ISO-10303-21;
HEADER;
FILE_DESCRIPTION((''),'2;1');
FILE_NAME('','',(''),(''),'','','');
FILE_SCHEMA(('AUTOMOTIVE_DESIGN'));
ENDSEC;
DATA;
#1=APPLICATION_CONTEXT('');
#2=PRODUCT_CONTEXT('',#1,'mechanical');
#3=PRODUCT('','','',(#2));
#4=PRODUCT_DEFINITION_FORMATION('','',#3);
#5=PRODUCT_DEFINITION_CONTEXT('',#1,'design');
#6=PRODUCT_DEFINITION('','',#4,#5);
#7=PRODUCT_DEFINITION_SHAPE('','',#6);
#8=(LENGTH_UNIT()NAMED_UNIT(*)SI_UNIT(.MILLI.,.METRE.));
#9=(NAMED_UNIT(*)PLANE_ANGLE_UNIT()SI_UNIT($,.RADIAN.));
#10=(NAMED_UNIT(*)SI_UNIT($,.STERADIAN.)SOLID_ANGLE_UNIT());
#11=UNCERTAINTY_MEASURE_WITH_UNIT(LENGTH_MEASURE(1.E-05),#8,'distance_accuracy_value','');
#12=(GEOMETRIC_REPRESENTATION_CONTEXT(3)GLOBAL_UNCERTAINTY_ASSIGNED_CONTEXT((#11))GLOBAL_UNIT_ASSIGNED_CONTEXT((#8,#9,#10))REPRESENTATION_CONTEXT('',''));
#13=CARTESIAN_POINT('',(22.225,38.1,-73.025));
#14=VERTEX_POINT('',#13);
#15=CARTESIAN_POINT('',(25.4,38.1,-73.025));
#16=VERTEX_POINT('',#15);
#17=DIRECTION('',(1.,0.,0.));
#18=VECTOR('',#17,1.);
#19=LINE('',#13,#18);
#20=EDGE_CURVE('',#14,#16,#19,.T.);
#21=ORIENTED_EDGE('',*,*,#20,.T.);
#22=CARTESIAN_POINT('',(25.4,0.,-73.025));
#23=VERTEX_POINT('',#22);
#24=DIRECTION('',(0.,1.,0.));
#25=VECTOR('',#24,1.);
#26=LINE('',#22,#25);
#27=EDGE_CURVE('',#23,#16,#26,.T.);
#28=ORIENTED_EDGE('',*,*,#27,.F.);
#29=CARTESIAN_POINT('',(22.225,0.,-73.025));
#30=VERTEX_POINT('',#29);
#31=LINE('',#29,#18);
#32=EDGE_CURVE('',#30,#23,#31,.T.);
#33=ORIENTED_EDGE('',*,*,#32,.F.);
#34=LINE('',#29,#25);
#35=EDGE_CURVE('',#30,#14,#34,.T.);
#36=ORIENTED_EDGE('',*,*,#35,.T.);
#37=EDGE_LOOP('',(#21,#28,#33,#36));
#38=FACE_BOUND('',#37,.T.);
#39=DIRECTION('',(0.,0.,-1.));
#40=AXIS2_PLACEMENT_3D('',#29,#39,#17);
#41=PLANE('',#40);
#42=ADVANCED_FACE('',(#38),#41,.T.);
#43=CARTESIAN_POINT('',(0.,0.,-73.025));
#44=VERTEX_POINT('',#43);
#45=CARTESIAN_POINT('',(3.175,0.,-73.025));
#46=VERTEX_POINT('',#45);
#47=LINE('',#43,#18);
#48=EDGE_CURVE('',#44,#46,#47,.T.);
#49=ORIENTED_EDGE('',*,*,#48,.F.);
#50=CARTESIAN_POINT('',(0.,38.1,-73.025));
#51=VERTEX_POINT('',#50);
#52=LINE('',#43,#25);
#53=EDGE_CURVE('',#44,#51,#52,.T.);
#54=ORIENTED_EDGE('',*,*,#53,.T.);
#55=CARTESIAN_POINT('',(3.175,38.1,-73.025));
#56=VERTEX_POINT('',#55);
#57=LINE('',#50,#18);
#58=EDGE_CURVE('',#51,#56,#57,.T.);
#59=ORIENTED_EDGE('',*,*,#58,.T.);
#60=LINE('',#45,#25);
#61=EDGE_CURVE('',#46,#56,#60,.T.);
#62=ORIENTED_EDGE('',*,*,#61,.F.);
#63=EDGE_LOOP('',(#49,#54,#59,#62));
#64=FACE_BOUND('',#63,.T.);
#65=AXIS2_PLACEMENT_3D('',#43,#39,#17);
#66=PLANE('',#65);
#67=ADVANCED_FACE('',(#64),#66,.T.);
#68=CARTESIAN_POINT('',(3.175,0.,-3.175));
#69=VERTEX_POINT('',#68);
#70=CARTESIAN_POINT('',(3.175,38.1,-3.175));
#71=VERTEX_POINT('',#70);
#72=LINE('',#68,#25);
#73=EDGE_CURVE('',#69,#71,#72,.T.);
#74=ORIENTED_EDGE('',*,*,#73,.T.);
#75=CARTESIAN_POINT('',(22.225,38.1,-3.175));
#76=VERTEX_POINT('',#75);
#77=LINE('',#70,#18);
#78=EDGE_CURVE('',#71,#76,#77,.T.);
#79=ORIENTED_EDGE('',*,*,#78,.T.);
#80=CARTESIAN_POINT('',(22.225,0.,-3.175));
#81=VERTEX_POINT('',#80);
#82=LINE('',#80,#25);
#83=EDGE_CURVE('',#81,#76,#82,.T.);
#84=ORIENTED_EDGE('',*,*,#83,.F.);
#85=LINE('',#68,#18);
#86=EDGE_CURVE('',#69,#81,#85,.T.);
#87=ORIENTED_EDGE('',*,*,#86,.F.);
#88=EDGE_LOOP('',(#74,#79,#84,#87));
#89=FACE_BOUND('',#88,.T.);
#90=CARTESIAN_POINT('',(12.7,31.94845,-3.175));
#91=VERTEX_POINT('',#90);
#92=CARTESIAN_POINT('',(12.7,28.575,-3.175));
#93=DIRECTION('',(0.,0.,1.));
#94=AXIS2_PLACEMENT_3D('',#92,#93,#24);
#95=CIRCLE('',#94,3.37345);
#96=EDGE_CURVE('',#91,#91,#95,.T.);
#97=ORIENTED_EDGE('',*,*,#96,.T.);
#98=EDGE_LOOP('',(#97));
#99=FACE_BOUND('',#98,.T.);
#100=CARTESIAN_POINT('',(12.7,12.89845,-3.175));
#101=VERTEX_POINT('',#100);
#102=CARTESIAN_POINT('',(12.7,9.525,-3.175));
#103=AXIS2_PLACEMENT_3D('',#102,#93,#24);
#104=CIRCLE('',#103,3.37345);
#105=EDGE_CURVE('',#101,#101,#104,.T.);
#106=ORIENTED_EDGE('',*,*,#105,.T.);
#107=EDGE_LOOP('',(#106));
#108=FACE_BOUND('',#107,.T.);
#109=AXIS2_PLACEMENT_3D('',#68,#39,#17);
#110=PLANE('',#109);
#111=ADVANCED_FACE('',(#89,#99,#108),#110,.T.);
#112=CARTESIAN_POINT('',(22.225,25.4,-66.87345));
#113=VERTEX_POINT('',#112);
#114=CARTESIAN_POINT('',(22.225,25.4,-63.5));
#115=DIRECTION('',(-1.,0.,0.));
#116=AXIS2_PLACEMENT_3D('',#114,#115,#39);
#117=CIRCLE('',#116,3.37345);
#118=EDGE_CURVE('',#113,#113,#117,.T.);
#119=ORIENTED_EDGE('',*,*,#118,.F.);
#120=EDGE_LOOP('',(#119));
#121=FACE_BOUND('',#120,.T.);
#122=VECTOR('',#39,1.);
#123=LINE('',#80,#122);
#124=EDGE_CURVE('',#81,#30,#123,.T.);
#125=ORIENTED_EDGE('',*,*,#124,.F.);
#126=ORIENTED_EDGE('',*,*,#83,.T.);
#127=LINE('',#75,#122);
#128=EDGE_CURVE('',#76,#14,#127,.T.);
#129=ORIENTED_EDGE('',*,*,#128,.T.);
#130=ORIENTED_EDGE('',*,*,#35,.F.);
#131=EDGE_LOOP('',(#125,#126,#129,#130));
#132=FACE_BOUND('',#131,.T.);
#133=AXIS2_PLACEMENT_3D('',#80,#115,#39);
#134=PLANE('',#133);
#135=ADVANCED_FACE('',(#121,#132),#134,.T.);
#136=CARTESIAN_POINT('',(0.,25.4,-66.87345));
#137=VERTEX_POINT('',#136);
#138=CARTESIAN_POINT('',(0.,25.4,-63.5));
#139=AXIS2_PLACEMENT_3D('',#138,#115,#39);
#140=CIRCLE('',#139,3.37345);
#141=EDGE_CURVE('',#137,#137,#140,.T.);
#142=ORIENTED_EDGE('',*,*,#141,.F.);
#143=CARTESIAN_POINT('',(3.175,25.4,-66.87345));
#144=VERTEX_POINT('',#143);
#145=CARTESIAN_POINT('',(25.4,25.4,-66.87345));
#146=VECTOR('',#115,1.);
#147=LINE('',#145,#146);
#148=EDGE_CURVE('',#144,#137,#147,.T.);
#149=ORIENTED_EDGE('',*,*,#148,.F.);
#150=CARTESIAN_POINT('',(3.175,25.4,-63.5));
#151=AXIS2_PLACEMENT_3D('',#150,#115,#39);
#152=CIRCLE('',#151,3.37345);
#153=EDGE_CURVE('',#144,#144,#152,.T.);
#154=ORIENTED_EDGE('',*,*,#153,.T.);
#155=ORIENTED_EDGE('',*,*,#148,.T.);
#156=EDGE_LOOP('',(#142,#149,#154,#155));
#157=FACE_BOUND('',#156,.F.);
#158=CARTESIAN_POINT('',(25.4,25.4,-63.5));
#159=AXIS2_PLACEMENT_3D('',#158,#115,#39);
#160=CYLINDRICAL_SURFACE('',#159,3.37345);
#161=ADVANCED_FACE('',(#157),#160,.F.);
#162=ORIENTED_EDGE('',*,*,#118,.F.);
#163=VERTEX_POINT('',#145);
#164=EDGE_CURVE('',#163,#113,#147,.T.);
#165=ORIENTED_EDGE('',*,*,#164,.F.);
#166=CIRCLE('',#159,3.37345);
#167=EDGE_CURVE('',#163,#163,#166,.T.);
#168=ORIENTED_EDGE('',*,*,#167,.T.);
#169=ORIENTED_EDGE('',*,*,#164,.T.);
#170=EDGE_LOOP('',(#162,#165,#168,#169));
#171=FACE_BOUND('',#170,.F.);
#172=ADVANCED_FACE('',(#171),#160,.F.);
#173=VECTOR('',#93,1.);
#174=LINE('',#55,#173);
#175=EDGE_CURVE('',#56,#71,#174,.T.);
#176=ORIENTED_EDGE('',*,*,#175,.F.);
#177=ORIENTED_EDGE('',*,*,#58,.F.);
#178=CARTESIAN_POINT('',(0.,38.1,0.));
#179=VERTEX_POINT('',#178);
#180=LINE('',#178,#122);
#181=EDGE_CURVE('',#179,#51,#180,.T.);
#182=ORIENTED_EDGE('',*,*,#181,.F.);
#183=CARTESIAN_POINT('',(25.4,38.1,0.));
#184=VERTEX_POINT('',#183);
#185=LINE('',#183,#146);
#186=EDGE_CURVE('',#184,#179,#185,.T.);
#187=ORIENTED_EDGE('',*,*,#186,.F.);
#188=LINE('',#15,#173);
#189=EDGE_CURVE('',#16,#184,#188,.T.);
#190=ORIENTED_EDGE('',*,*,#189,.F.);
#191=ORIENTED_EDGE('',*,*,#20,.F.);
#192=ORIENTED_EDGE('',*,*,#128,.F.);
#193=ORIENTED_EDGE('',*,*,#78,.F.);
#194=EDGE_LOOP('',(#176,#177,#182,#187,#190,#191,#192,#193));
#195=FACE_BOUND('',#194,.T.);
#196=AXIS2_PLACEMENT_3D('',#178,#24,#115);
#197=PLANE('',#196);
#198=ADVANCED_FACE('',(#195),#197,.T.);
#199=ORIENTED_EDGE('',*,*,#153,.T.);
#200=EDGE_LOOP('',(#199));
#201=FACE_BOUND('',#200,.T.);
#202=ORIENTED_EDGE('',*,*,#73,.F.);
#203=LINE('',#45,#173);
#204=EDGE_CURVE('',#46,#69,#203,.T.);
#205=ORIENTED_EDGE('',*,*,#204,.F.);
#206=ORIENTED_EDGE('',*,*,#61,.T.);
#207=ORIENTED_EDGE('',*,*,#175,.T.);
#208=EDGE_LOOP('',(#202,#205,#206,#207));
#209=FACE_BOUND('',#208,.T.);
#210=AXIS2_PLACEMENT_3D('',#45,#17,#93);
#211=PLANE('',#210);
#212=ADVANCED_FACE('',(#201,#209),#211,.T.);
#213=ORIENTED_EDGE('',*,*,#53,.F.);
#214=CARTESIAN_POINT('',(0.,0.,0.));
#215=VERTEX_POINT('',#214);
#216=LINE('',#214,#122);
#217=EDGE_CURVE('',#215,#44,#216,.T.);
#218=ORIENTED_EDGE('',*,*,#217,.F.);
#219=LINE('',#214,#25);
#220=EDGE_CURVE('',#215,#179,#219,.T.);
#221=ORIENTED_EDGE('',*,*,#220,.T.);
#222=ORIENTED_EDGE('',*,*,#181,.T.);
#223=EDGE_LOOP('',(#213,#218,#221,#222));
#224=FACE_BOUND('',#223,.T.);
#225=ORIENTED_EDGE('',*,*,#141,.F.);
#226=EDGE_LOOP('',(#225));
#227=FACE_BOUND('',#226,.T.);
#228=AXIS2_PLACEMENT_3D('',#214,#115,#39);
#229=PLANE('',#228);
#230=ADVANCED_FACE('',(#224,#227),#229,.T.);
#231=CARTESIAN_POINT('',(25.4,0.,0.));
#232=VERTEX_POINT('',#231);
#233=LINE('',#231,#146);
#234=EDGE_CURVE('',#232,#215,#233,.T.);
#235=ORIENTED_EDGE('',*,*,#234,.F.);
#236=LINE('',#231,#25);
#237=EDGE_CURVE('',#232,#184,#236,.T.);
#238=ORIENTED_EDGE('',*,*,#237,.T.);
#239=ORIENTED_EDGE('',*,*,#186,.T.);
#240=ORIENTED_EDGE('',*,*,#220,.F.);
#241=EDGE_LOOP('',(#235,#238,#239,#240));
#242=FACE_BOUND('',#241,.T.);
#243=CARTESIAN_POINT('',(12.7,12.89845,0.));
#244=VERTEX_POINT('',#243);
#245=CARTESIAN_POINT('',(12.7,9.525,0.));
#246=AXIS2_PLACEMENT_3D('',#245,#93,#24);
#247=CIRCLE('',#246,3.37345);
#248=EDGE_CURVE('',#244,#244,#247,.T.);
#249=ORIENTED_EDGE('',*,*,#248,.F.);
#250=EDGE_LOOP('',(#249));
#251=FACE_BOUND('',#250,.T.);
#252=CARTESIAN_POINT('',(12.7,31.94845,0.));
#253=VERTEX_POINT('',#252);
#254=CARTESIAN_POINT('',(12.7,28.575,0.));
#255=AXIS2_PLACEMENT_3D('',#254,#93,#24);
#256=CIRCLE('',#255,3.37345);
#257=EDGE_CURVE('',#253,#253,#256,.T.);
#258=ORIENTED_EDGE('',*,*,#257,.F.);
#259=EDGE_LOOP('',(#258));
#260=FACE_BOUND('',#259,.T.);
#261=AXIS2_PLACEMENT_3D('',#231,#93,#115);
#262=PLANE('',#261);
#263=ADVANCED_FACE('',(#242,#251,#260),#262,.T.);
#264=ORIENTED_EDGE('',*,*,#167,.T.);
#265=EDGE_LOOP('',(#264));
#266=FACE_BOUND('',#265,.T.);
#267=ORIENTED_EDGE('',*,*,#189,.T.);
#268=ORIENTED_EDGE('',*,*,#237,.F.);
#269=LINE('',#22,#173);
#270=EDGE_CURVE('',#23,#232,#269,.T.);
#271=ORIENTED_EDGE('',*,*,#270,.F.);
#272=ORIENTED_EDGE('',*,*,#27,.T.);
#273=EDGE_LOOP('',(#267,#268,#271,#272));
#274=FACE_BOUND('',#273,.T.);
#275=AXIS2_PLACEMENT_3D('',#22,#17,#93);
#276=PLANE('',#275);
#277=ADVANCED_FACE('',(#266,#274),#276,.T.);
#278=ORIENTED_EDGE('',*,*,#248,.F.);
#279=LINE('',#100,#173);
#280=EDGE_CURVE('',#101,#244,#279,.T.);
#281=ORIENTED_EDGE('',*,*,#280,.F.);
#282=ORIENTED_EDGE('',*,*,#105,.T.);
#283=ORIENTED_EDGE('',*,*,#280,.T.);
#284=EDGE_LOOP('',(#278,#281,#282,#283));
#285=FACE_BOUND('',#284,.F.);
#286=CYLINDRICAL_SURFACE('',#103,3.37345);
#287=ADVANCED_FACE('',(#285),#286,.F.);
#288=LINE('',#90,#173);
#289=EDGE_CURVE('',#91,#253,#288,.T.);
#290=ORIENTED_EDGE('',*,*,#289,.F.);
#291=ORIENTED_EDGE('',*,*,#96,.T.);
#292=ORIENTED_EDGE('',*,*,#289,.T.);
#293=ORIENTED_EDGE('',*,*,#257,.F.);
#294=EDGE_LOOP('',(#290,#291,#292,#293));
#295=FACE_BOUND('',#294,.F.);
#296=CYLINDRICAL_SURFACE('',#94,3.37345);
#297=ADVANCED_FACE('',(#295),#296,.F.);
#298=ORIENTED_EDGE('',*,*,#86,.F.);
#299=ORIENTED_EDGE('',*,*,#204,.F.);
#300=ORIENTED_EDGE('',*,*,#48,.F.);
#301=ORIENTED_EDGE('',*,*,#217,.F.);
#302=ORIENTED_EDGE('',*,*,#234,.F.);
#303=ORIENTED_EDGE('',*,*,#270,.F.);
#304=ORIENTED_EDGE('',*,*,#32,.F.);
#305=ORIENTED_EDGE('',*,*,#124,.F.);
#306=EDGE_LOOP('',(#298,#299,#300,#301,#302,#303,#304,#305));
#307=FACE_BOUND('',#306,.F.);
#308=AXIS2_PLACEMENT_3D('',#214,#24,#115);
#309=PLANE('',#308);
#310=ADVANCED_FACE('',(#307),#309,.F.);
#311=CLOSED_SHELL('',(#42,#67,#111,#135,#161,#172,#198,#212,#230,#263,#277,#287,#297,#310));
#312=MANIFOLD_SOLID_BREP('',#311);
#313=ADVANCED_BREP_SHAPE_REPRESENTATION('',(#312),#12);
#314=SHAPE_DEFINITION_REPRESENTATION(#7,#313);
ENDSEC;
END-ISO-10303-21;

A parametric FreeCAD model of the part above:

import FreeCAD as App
import Part
import Sketcher

V = App.Vector
Q = App.Units.Quantity

doc = App.newDocument("Part")
body = doc.addObject("PartDesign::Body", "Body")

# Sketch on XZ plane
sketch1 = body.newObject("Sketcher::SketchObject", "Sketch")
sketch1.AttachmentSupport = (doc.getObject("XZ_Plane"), [""])
sketch1.MapMode = "FlatFace"
sketch1.addGeometry([
    Part.LineSegment(V(0, -73, 0), V(0, 0, 0)),  # 0
    Part.LineSegment(V(0, 0, 0), V(25.4, 0, 0)),  # 1
    Part.LineSegment(V(25.4, 0, 0), V(25.4, -73, 0)),  # 2
    Part.LineSegment(V(25.4, -73, 0), V(22.2, -73, 0)),  # 3
    Part.LineSegment(V(22.2, -73, 0), V(22.2, -3.2, 0)),  # 4
    Part.LineSegment(V(22.2, -3.2, 0), V(3.2, -3.2, 0)),  # 5
    Part.LineSegment(V(3.2, -3.2, 0), V(3.2, -73, 0)),  # 6
    Part.LineSegment(V(3.2, -73, 0), V(0, -73, 0)),  # 7
], False)
sketch1.addConstraint([
    Sketcher.Constraint("Coincident", 0, 2, 1, 1),
    Sketcher.Constraint("Coincident", 1, 2, 2, 1),
    Sketcher.Constraint("Coincident", 2, 2, 3, 1),
    Sketcher.Constraint("Coincident", 3, 2, 4, 1),
    Sketcher.Constraint("Coincident", 4, 2, 5, 1),
    Sketcher.Constraint("Coincident", 5, 2, 6, 1),
    Sketcher.Constraint("Coincident", 6, 2, 7, 1),
    Sketcher.Constraint("Coincident", 7, 2, 0, 1),
    Sketcher.Constraint("Vertical", 0),
    Sketcher.Constraint("Horizontal", 1),
    Sketcher.Constraint("Vertical", 2),
    Sketcher.Constraint("Horizontal", 3),
    Sketcher.Constraint("Vertical", 4),
    Sketcher.Constraint("Horizontal", 5),
    Sketcher.Constraint("Vertical", 6),
    Sketcher.Constraint("Horizontal", 7),
    Sketcher.Constraint("Coincident", 0, 2, -1, 1),
    Sketcher.Constraint("Horizontal", 3, 2, 6, 2),
    Sketcher.Constraint("Equal", 3, 7),
    Sketcher.Constraint("DistanceX", 1, 1, 1, 2, Q("1 in")),
    Sketcher.Constraint("DistanceX", 3, 2, 3, 1, Q("0.125 in")),
    Sketcher.Constraint("DistanceY", 0, 1, 0, 2, Q("2.875 in")),
    Sketcher.Constraint("DistanceY", 4, 2, -1, 1, Q("0.125 in")),
])
pad1 = body.newObject("PartDesign::Pad", "Pad")
pad1.Profile = sketch1
pad1.Length = Q("1.5 in")
pad1.Reversed = True

# Sketch on YZ plane
sketch2 = body.newObject("Sketcher::SketchObject", "Sketch001")
sketch2.AttachmentSupport = (doc.getObject("YZ_Plane"), [""])
sketch2.MapMode = "FlatFace"
sketch2.AttachmentOffset = App.Placement(V(0, 0, 1 * 25.4), App.Rotation())
sketch2.addGeometry(Part.Circle(V(25.4, -63.5, 0), V(0, 0, 1), 3.4), False)
sketch2.addConstraint([
    Sketcher.Constraint("Diameter", 0, Q("0.2656299 in")),
    Sketcher.Constraint("DistanceX", -1, 1, 0, 3, Q("1 in")),
    Sketcher.Constraint("DistanceY", 0, 3, -1, 1, Q("2.5 in")),
])
doc.recompute()
hole = body.newObject("PartDesign::Hole", "Hole")
hole.Profile = sketch2
hole.ThreadType = "None"
hole.Diameter = Q("0.265626 in")
hole.DepthType = "ThroughAll"

# Sketch on XY plane
sketch3 = body.newObject("Sketcher::SketchObject", "Sketch002")
sketch3.AttachmentSupport = (doc.getObject("XY_Plane"), [""])
sketch3.MapMode = "FlatFace"
sketch3.AttachmentOffset = App.Placement(V(0, 0, -0.125 * 25.4), App.Rotation())
sketch3.addGeometry([
    Part.Circle(V(12.7, 9.5, 0), V(0, 0, 1), 3.4),
    Part.Circle(V(12.7, 28.6, 0), V(0, 0, 1), 3.4),
], False)
sketch3.addConstraint([
    Sketcher.Constraint("Equal", 0, 1),
    Sketcher.Constraint("Vertical", 0, 3, 1, 3),
    Sketcher.Constraint("Diameter", 0, Q("0.2656299 in")),
    Sketcher.Constraint("DistanceX", -1, 1, 0, 3, Q("0.5 in")),
    Sketcher.Constraint("DistanceY", 0, 3, 1, 3, Q("0.75 in")),
    Sketcher.Constraint("DistanceY", -1, 1, 0, 3, Q("0.375 in")),
])
doc.recompute()
hole2 = body.newObject("PartDesign::Hole", "Hole001")
hole2.Profile = sketch3
hole2.ThreadType = "None"
hole2.Diameter = Q("0.265626 in")
hole2.DepthType = "ThroughAll"
hole2.Reversed = True

doc.recompute()
